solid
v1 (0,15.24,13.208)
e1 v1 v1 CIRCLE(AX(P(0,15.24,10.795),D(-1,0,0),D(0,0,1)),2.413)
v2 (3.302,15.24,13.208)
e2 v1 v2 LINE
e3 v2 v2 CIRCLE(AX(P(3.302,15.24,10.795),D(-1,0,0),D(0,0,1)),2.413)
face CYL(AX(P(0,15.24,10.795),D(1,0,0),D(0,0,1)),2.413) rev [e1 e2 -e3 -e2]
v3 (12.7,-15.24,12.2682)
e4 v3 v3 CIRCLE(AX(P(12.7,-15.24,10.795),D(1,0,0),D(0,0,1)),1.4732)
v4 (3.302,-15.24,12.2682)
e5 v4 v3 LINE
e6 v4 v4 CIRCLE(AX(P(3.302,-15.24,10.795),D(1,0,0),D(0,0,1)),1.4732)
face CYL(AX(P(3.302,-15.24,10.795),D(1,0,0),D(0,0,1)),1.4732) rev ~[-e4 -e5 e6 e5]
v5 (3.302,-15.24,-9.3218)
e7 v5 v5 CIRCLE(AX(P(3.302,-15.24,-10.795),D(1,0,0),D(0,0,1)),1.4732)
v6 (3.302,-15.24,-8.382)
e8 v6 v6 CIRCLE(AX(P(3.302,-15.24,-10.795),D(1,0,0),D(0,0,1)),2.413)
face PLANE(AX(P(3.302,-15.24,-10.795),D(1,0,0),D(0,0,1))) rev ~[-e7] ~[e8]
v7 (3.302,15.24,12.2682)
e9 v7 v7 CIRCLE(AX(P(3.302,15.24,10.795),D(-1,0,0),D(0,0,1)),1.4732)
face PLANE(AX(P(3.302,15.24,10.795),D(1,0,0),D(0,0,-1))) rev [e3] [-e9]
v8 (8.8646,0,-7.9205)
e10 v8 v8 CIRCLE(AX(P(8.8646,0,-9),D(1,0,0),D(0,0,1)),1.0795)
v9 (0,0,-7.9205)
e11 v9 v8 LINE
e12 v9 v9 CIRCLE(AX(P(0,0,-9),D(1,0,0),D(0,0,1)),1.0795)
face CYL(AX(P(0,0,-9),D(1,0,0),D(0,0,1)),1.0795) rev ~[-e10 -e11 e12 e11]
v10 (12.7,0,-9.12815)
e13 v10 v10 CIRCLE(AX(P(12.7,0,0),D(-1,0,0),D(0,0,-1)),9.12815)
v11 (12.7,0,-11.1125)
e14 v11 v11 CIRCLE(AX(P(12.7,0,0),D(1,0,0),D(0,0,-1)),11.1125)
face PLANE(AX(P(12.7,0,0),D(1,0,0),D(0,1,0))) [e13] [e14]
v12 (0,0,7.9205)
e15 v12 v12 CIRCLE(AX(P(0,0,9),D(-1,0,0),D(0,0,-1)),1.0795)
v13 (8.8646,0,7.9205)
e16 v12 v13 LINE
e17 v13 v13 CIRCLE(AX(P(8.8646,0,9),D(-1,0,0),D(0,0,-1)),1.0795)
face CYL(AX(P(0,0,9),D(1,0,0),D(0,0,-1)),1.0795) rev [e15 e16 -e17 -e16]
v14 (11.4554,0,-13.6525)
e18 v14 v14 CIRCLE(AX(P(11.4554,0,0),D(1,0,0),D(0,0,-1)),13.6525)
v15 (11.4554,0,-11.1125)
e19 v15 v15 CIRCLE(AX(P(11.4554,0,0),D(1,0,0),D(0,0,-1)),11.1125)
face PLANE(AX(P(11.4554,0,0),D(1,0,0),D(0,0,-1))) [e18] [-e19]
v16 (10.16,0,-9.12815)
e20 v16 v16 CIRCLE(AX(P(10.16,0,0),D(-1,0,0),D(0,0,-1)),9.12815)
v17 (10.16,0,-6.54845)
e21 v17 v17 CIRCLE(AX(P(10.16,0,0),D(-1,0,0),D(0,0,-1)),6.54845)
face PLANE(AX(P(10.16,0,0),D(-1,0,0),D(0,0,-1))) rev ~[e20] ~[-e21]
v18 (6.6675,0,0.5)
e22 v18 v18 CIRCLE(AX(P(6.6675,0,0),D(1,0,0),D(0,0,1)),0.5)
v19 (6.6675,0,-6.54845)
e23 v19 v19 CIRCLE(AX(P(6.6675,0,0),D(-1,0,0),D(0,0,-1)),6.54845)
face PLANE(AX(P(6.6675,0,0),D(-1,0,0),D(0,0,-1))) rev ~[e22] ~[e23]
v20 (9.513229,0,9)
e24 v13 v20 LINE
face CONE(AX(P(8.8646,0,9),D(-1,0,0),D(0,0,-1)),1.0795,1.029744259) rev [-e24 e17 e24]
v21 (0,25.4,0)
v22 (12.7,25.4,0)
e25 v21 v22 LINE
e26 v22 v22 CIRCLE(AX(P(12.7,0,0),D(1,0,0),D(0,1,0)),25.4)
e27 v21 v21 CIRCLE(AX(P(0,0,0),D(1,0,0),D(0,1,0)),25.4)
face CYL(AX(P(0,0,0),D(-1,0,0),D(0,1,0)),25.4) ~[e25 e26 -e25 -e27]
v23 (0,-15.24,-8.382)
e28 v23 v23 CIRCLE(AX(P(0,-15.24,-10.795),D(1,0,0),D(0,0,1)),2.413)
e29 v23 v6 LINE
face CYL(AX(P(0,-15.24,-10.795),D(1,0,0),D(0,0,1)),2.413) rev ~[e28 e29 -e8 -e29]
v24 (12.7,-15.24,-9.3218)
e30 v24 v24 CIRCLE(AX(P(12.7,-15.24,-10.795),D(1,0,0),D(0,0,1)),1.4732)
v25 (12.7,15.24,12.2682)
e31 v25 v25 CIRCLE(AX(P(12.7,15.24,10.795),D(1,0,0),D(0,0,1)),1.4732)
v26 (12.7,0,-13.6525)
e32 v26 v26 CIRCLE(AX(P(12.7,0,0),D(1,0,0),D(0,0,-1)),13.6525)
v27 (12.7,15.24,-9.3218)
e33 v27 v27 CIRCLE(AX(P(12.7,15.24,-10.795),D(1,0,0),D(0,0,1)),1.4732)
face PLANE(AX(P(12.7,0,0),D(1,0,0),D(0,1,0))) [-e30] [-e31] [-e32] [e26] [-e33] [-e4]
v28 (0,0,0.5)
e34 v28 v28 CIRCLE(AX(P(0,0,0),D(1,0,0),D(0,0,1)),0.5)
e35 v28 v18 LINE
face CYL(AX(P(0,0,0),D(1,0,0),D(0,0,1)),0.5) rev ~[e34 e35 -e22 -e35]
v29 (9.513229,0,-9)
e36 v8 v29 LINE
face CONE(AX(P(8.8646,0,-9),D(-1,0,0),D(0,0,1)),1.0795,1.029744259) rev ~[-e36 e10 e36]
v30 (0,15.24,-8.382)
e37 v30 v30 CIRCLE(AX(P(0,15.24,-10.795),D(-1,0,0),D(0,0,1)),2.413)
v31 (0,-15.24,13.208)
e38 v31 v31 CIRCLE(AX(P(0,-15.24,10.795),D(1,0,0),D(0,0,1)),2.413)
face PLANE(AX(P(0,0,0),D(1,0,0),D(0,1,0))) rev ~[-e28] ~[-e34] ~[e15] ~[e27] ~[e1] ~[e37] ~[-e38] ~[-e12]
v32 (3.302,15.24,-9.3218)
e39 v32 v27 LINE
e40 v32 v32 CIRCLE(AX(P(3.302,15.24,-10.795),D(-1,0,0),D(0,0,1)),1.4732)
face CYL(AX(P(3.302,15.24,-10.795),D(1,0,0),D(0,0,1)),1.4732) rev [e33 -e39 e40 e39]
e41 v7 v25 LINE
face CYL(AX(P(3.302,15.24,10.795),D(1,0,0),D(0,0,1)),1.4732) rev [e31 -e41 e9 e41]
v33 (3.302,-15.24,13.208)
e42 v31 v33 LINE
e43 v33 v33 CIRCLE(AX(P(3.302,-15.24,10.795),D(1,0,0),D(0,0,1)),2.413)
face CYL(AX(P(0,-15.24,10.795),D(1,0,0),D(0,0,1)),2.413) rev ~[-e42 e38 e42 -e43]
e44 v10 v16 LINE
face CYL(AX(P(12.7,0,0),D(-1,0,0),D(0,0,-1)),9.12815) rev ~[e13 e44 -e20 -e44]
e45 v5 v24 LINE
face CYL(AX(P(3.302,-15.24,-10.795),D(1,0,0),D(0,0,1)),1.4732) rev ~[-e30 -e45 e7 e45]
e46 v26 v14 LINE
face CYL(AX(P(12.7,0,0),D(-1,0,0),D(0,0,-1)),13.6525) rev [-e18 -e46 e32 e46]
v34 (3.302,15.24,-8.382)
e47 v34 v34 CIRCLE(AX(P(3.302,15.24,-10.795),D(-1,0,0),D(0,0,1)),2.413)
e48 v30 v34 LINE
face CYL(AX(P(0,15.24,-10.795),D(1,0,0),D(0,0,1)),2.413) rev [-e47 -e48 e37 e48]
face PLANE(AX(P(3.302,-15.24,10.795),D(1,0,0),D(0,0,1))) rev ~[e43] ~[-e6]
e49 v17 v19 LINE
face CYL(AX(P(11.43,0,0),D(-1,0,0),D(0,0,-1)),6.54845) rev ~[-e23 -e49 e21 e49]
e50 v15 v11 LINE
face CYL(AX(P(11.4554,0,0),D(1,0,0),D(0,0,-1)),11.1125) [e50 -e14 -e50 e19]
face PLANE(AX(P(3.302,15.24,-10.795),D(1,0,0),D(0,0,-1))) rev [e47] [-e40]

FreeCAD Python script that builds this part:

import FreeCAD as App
import Part
import Sketcher

V = App.Vector
Q = App.Units.Quantity

doc = App.newDocument("Part")
body = doc.addObject("PartDesign::Body", "Body")

sketch1 = body.newObject("Sketcher::SketchObject", "Sketch")
sketch1.AttachmentSupport = (doc.getObject("YZ_Plane"), [""])
sketch1.MapMode = "FlatFace"
sketch1.addGeometry(Part.Circle(V(0, 0, 0), V(0, 0, 1), 25), False)
sketch1.addConstraint([
    Sketcher.Constraint("Coincident", 0, 3, -1, 1),
    Sketcher.Constraint("Diameter", 0, Q("2 in")),
])
pad1 = body.newObject("PartDesign::Pad", "Pad")
pad1.Profile = sketch1
pad1.Length = Q("0.5 in")

sketch2 = body.newObject("Sketcher::SketchObject", "Sketch001")
sketch2.AttachmentSupport = (doc.getObject("YZ_Plane"), [""])
sketch2.MapMode = "FlatFace"
sketch2.AttachmentOffset = App.Placement(V(0, 0, 0.5 * 25.4), App.Rotation())
sketch2.addGeometry(Part.Circle(V(0, 0, 0), V(0, 0, 1), 9), False)
sketch2.addConstraint([
    Sketcher.Constraint("Coincident", 0, 3, -1, 1),
    Sketcher.Constraint("Diameter", 0, Q("0.718752 in")),
])
doc.recompute()
hole = body.newObject("PartDesign::Hole", "Hole")
hole.Profile = sketch2
hole.ThreadType = "None"
hole.Diameter = Q("0.718752 in")
hole.DepthType = "Dimension"
hole.Depth = Q("0.1 in")
hole.DrillPoint = "Flat"

sketch3 = body.newObject("Sketcher::SketchObject", "Sketch002")
sketch3.AttachmentSupport = (doc.getObject("YZ_Plane"), [""])
sketch3.MapMode = "FlatFace"
sketch3.AttachmentOffset = App.Placement(V(0, 0, 0.45 * 25.4), App.Rotation())
sketch3.addGeometry(Part.Circle(V(0, 0, 0), V(0, 0, 1), 7), False)
sketch3.addConstraint([
    Sketcher.Constraint("Coincident", 0, 3, -1, 1),
    Sketcher.Constraint("Diameter", 0, Q("0.5156299 in")),
])
doc.recompute()
hole2 = body.newObject("PartDesign::Hole", "Hole001")
hole2.Profile = sketch3
hole2.ThreadType = "None"
hole2.Diameter = Q("0.515626 in")
hole2.DepthType = "Dimension"
hole2.Depth = Q("0.1875 in")
hole2.DrillPoint = "Flat"

sketch4 = body.newObject("Sketcher::SketchObject", "Sketch003")
sketch4.AttachmentSupport = (doc.getObject("YZ_Plane"), [""])
sketch4.MapMode = "FlatFace"
sketch4.addGeometry(Part.Circle(V(0, -9, 0), V(0, 0, 1), 1.1), False)
sketch4.addConstraint([
    Sketcher.Constraint("PointOnObject", 0, 3, -2),
    Sketcher.Constraint("Diameter", 0, Q("0.085 in")),
    Sketcher.Constraint("DistanceY", 0, 3, -1, 1, 9.0),
])
doc.recompute()
hole3 = body.newObject("PartDesign::Hole", "Hole002")
hole3.Profile = sketch4
hole3.ThreadType = "None"
hole3.Diameter = Q("0.085 in")
hole3.DepthType = "Dimension"
hole3.Depth = Q("0.349 in")
hole3.DrillPoint = "Angled"
hole3.DrillPointAngle = 118
hole3.Reversed = True

sketch5 = body.newObject("Sketcher::SketchObject", "Sketch004")
sketch5.AttachmentSupport = (doc.getObject("YZ_Plane"), [""])
sketch5.MapMode = "FlatFace"
sketch5.addGeometry(Part.Circle(V(0, 0, 0), V(0, 0, 1), 0.5), False)
sketch5.addConstraint([
    Sketcher.Constraint("Coincident", 0, 3, -1, 1),
    Sketcher.Constraint("Diameter", 0, 1.0),
])
doc.recompute()
hole4 = body.newObject("PartDesign::Hole", "Hole003")
hole4.Profile = sketch5
hole4.ThreadType = "None"
hole4.Diameter = 1
hole4.DepthType = "ThroughAll"
hole4.Reversed = True
doc.recompute()

mirrored = body.newObject("PartDesign::Mirrored", "Mirrored")
mirrored.Originals = [hole3]
mirrored.MirrorPlane = (doc.getObject("XY_Plane"), [""])
body.Tip = mirrored

sketch6 = body.newObject("Sketcher::SketchObject", "Sketch005")
sketch6.AttachmentSupport = (doc.getObject("YZ_Plane"), [""])
sketch6.MapMode = "FlatFace"
sketch6.addGeometry([
    Part.Circle(V(-15.2, 10.8, 0), V(0, 0, 1), 1.5),
    Part.Circle(V(-15.2, -10.8, 0), V(0, 0, 1), 1.5),
], False)
sketch6.addConstraint([
    Sketcher.Constraint("Equal", 0, 1),
    Sketcher.Constraint("Symmetric", 0, 3, 1, 3, -1),
    Sketcher.Constraint("Diameter", 0, Q("0.116 in")),
    Sketcher.Constraint("DistanceX", 0, 3, -1, 1, Q("0.6 in")),
    Sketcher.Constraint("DistanceY", 1, 3, 0, 3, Q("0.85 in")),
])
doc.recompute()
hole5 = body.newObject("PartDesign::Hole", "Hole004")
hole5.Profile = sketch6
hole5.ThreadType = "None"
hole5.Diameter = Q("0.116 in")
hole5.DepthType = "ThroughAll"
hole5.HoleCutType = "Counterbore"
hole5.HoleCutDiameter = Q("0.19 in")
hole5.HoleCutDepth = Q("0.13 in")
hole5.Reversed = True
doc.recompute()

mirrored2 = body.newObject("PartDesign::Mirrored", "Mirrored001")
mirrored2.Originals = [hole5]
mirrored2.MirrorPlane = (doc.getObject("XZ_Plane"), [""])
body.Tip = mirrored2

sketch7 = body.newObject("Sketcher::SketchObject", "Sketch006")
sketch7.AttachmentSupport = (doc.getObject("XZ_Plane"), [""])
sketch7.MapMode = "FlatFace"
sketch7.addGeometry([
    Part.LineSegment(V(11.5, -13.7, 0), V(11.5, -11.1, 0)),
    Part.LineSegment(V(11.5, -11.1, 0), V(12.7, -11.1, 0)),
    Part.LineSegment(V(12.7, -11.1, 0), V(12.7, -13.7, 0)),
    Part.LineSegment(V(12.7, -13.7, 0), V(11.5, -13.7, 0)),
], False)
sketch7.addConstraint([
    Sketcher.Constraint("Coincident", 0, 2, 1, 1),
    Sketcher.Constraint("Coincident", 1, 2, 2, 1),
    Sketcher.Constraint("Coincident", 2, 2, 3, 1),
    Sketcher.Constraint("Coincident", 3, 2, 0, 1),
    Sketcher.Constraint("Vertical", 0),
    Sketcher.Constraint("Horizontal", 1),
    Sketcher.Constraint("Vertical", 2),
    Sketcher.Constraint("Horizontal", 3),
    Sketcher.Constraint("DistanceY", 0, 1, 0, 2, Q("0.1 in")),
    Sketcher.Constraint("DistanceX", 1, 1, 1, 2, Q("0.049 in")),
    Sketcher.Constraint("DistanceY", 0, 2, -1, 1, Q("0.4375 in")),
    Sketcher.Constraint("DistanceX", -1, 1, 1, 2, Q("0.5 in")),
])
groove = body.newObject("PartDesign::Groove", "Groove")
groove.Profile = sketch7
groove.ReferenceAxis = (sketch7, ["H_Axis"])
groove.Angle = 360

doc.recompute()
